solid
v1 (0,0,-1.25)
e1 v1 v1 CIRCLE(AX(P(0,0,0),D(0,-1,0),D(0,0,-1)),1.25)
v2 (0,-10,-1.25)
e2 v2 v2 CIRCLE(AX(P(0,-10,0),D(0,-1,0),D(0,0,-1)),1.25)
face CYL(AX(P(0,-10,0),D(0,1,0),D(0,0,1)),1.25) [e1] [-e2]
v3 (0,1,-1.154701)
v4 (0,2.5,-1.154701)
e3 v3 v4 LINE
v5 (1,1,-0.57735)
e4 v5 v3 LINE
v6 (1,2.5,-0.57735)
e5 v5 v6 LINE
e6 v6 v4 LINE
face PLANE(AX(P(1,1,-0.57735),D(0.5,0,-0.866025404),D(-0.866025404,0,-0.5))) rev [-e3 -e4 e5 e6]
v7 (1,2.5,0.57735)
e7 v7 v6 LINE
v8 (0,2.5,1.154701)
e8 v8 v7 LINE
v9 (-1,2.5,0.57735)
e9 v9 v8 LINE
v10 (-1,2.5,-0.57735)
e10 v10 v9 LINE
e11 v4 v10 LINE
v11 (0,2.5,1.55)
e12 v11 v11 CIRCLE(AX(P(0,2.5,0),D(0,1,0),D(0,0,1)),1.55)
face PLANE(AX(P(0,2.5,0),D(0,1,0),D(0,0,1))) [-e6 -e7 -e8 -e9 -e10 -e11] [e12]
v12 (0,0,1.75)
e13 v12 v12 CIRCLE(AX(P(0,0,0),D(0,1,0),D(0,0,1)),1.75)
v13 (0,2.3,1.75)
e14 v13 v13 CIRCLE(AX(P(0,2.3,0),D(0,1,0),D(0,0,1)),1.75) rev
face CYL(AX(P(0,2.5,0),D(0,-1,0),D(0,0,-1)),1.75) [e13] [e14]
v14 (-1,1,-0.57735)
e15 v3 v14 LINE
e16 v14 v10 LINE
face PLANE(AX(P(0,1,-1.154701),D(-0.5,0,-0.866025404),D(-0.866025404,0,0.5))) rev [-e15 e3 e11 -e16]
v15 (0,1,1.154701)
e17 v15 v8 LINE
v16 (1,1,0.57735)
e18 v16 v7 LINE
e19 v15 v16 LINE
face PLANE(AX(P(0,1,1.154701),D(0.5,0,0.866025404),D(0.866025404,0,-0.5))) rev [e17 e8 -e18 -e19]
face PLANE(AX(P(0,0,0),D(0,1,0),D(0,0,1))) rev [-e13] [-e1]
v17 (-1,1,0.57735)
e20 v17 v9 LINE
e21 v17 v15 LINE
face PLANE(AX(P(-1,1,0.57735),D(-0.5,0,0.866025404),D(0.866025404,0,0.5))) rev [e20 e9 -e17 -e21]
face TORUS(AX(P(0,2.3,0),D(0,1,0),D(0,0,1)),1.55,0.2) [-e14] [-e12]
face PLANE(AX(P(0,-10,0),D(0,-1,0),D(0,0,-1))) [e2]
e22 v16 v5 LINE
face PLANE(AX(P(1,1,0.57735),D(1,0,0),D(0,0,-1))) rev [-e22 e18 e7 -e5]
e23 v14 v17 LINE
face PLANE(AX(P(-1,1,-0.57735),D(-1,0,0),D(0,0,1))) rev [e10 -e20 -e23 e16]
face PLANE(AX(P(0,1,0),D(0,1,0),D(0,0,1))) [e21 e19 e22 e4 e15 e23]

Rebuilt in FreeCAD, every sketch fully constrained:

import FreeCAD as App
import Part
import Sketcher
Q = App.Units.Quantity


def edges_at(feature, points):
    """Names of the edges that pass closest to the given points."""
    edges = feature.Shape.Edges
    near = lambda p: min(range(len(edges)), key=lambda i: edges[i].distToShape(Part.Vertex(*p))[0])
    return sorted({f"Edge{near(p) + 1}" for p in points})


def add_polygon(sketch, points):
    """Adds a closed chain of lines whose ends are joined by coincident constraints."""
    first, n = sketch.GeometryCount, len(points)
    for a, b in zip(points, points[1:] + points[:1]):
        sketch.addGeometry(Part.LineSegment(App.Vector(*a, 0), App.Vector(*b, 0)), False)
    for i in range(n):
        sketch.addConstraint(Sketcher.Constraint("Coincident", first + i, 2, first + (i + 1) % n, 1))

doc = App.newDocument("Part")
body = doc.addObject("PartDesign::Body", "Body")

# Sketch on XZ plane
sketch1 = body.newObject("Sketcher::SketchObject", "Sketch")
sketch1.AttachmentSupport = (doc.getObject("XZ_Plane"), [""])
sketch1.MapMode = "FlatFace"
sketch1.addGeometry(Part.Circle(App.Vector(0, 0, 0), App.Vector(0, 0, 1), 1.8), False)
sketch1.addConstraint([
    Sketcher.Constraint("Coincident", 0, 3, -1, 1),
    Sketcher.Constraint("Diameter", 0, 3.5),
])
pad1 = body.newObject("PartDesign::Pad", "Pad")
pad1.Profile = sketch1
pad1.Length = 2.5
pad1.Reversed = True

# Sketch on XZ plane
sketch2 = body.newObject("Sketcher::SketchObject", "Sketch001")
sketch2.AttachmentSupport = (doc.getObject("XZ_Plane"), [""])
sketch2.MapMode = "FlatFace"
sketch2.addGeometry(Part.Circle(App.Vector(0, 0, 0), App.Vector(0, 0, 1), 1.2), False)
sketch2.addConstraint([
    Sketcher.Constraint("Coincident", 0, 3, -1, 1),
    Sketcher.Constraint("Diameter", 0, 2.5),
])
pad2 = body.newObject("PartDesign::Pad", "Pad001")
pad2.Profile = sketch2
pad2.Length = 10
doc.recompute()

fillet = body.newObject("PartDesign::Fillet", "Fillet")
fillet.Base = (pad2, edges_at(pad2, [(-1.75, 2.5, 0)]))
fillet.Radius = 0.2

# Sketch on XZ plane
sketch3 = body.newObject("Sketcher::SketchObject", "Sketch002")
sketch3.AttachmentSupport = (doc.getObject("XZ_Plane"), [""])
sketch3.MapMode = "FlatFace"
sketch3.AttachmentOffset = App.Placement(App.Vector(0, 0, -2.5), App.Rotation())
add_polygon(sketch3, [(0, 1.2), (1, 0.6), (1, -0.6), (0, -1.2), (-1, -0.6), (-1, 0.6)])  # lines 0-5
sketch3.addConstraint([
    Sketcher.Constraint("Vertical", 1),
    Sketcher.Constraint("Vertical", 4),
    Sketcher.Constraint("Symmetric", 0, 2, 3, 2, -1, 1),
    Sketcher.Constraint("Symmetric", 2, 2, 5, 2, -1, 1),
    Sketcher.Constraint("PointOnObject", 2, 2, -2),
    Sketcher.Constraint("Parallel", 2, 5),
    Sketcher.Constraint("Horizontal", 1, 2, 3, 2),
    Sketcher.Constraint("Angle", 0, Q("-30 deg")),
    Sketcher.Constraint("DistanceX", -1, 1, 0, 2, 1.0),
    Sketcher.Constraint("DistanceY", 1, 2, 1, 1, 1.154701),
])
pocket1 = body.newObject("PartDesign::Pocket", "Pocket")
pocket1.Profile = sketch3
pocket1.Length = 1.5
pocket1.Reversed = True

doc.recompute()
